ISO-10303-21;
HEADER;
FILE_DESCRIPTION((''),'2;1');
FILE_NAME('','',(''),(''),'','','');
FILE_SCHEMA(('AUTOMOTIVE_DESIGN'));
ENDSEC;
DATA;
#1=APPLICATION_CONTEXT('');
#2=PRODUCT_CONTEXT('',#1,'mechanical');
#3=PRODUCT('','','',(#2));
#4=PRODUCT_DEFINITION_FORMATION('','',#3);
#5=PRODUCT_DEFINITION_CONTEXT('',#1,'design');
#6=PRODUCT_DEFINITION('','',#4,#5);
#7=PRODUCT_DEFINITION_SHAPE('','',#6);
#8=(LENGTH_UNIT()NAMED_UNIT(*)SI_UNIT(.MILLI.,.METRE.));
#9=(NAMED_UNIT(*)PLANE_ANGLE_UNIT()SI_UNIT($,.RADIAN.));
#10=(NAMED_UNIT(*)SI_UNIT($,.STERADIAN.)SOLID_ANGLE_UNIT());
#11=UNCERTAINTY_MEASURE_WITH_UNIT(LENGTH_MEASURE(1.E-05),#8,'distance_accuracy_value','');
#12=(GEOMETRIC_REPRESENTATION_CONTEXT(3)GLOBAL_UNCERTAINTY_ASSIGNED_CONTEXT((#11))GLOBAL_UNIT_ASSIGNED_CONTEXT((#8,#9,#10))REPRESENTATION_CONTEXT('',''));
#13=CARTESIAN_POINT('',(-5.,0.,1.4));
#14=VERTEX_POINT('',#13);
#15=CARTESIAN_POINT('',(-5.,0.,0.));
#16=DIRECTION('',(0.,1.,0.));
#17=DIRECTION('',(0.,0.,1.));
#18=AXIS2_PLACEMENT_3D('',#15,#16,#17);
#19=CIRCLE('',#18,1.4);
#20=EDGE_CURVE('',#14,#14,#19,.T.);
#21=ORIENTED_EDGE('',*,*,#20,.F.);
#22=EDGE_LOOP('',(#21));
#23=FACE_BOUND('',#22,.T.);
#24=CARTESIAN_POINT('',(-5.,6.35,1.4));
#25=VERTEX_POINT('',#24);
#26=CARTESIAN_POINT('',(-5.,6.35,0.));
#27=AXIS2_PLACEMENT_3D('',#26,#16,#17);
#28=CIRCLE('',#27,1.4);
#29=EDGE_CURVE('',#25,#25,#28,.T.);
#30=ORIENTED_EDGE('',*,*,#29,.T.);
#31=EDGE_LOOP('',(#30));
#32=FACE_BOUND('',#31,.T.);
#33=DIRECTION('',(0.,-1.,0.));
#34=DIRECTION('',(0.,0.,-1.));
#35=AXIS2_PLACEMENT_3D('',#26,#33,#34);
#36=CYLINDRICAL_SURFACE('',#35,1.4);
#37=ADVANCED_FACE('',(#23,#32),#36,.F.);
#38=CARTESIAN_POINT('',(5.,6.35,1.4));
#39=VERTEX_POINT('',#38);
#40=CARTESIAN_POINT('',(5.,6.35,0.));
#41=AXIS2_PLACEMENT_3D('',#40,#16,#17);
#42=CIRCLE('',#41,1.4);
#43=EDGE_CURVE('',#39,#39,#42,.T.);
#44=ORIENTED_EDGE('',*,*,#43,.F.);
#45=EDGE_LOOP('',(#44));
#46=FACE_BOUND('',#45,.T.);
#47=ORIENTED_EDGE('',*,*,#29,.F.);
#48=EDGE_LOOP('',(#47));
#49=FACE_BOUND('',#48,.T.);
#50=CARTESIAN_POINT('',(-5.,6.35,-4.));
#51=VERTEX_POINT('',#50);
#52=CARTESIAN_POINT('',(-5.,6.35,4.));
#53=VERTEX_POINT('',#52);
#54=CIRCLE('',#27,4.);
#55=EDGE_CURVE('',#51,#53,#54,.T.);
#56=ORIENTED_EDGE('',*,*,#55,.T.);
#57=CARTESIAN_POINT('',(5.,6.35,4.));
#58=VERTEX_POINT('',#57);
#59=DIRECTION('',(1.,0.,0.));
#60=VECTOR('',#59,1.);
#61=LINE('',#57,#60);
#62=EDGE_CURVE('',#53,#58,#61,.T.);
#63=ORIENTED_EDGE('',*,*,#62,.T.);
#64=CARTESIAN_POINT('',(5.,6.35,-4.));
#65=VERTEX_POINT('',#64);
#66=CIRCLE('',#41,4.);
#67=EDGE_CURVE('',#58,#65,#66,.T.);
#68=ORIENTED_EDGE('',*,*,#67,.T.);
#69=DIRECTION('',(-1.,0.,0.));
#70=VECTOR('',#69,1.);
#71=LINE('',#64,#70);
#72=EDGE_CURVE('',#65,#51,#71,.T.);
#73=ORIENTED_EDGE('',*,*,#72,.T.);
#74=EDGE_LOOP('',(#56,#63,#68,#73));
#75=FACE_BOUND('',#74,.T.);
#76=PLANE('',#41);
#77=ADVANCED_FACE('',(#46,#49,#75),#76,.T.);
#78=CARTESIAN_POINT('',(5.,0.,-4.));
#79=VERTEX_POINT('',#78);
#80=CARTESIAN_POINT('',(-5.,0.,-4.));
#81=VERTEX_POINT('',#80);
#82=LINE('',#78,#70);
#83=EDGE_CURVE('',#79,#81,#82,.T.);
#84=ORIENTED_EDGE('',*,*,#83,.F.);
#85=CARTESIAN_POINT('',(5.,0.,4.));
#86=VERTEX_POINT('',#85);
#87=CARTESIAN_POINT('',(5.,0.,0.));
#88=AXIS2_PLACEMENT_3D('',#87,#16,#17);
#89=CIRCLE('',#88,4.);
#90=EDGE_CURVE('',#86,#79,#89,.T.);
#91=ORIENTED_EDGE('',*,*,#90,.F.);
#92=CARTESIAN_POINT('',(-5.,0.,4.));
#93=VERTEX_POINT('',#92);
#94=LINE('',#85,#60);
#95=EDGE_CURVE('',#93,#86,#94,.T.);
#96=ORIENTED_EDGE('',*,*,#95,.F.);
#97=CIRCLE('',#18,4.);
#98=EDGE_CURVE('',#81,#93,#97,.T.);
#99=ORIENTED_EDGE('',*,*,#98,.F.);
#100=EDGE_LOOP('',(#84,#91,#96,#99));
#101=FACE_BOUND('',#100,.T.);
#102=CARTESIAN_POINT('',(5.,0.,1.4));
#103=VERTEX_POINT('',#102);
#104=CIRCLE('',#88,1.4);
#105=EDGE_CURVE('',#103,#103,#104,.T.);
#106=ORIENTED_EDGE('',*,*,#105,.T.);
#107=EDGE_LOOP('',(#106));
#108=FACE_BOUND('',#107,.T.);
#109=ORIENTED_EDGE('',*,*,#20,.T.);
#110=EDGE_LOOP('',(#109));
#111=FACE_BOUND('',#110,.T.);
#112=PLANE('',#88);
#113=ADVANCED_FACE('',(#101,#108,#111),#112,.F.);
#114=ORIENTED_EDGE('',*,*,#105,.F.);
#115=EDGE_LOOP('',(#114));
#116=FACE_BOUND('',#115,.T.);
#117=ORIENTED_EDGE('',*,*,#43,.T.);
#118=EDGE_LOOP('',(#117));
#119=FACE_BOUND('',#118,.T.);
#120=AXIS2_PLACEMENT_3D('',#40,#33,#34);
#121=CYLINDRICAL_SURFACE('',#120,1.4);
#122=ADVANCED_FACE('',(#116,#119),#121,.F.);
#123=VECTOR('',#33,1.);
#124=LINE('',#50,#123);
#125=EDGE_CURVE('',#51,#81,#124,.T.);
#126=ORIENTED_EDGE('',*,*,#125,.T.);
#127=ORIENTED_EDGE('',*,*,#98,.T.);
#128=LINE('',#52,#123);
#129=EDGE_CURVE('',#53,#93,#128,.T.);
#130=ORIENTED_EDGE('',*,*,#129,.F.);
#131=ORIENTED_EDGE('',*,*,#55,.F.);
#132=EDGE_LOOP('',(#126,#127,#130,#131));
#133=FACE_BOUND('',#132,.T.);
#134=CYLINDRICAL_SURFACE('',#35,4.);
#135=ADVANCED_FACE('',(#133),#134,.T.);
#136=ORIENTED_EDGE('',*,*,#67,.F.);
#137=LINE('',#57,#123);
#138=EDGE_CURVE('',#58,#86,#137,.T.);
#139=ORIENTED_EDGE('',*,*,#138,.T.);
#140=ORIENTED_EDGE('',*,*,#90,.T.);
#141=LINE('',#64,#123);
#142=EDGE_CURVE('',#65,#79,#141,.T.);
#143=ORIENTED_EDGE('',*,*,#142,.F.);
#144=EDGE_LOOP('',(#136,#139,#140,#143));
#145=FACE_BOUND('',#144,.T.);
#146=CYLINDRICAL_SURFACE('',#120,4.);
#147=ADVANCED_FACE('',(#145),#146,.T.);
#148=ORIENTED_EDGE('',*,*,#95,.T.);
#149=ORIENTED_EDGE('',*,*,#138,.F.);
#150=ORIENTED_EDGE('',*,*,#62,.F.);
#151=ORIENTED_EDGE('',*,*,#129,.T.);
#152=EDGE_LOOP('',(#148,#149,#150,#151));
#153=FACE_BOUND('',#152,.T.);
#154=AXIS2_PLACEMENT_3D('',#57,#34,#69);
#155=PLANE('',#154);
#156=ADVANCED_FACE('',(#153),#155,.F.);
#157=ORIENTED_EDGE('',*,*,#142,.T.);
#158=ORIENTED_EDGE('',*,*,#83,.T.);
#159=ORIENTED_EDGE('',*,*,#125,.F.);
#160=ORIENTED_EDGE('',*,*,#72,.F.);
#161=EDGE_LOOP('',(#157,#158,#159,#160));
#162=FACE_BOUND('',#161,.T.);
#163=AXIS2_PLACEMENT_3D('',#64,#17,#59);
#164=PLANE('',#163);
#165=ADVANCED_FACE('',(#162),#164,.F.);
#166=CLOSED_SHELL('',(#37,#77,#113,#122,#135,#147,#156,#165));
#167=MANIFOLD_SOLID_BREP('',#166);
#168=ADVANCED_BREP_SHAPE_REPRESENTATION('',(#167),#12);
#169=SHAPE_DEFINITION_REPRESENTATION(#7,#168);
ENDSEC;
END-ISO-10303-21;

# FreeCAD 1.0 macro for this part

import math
import FreeCAD as App
import Part
import Sketcher

doc = App.newDocument("Part")
body = doc.addObject("PartDesign::Body", "Body")

# Sketch on XZ plane
sketch1 = body.newObject("Sketcher::SketchObject", "Sketch")
sketch1.AttachmentSupport = (doc.getObject("XZ_Plane"), [""])
sketch1.MapMode = "FlatFace"
sketch1.addGeometry([
    Part.LineSegment(App.Vector(-5, 4, 0), App.Vector(5, 4, 0)),  # 0
    Part.ArcOfCircle(Part.Circle(App.Vector(5, 0, 0), App.Vector(0, 0, 1), 4), math.radians(-90), math.radians(90)),  # 1
    Part.LineSegment(App.Vector(5, -4, 0), App.Vector(-5, -4, 0)),  # 2
    Part.ArcOfCircle(Part.Circle(App.Vector(-5, 0, 0), App.Vector(0, 0, 1), 4), math.radians(90), math.radians(270)),  # 3
    Part.Circle(App.Vector(5, 0, 0), App.Vector(0, 0, 1), 1.4),  # 4
    Part.Circle(App.Vector(-5, 0, 0), App.Vector(0, 0, 1), 1.4),  # 5
], False)
sketch1.addConstraint([
    Sketcher.Constraint("Tangent", 0, 2, 1, 2),
    Sketcher.Constraint("Tangent", 1, 1, 2, 1),
    Sketcher.Constraint("Tangent", 2, 2, 3, 2),
    Sketcher.Constraint("Tangent", 3, 1, 0, 1),
    Sketcher.Constraint("Horizontal", 0),
    Sketcher.Constraint("Horizontal", 2),
    Sketcher.Constraint("Coincident", 4, 3, 1, 3),
    Sketcher.Constraint("Coincident", 5, 3, 3, 3),
    Sketcher.Constraint("Equal", 4, 5),
    Sketcher.Constraint("Symmetric", 1, 3, 3, 3, -1, 1),
    Sketcher.Constraint("Radius", 1, 4.0),
    Sketcher.Constraint("Diameter", 4, 2.8),
    Sketcher.Constraint("DistanceX", 0, 1, 0, 2, 10.0),
])
pad1 = body.newObject("PartDesign::Pad", "Pad")
pad1.Profile = sketch1
pad1.Length = 6.35
pad1.Reversed = True

doc.recompute()
